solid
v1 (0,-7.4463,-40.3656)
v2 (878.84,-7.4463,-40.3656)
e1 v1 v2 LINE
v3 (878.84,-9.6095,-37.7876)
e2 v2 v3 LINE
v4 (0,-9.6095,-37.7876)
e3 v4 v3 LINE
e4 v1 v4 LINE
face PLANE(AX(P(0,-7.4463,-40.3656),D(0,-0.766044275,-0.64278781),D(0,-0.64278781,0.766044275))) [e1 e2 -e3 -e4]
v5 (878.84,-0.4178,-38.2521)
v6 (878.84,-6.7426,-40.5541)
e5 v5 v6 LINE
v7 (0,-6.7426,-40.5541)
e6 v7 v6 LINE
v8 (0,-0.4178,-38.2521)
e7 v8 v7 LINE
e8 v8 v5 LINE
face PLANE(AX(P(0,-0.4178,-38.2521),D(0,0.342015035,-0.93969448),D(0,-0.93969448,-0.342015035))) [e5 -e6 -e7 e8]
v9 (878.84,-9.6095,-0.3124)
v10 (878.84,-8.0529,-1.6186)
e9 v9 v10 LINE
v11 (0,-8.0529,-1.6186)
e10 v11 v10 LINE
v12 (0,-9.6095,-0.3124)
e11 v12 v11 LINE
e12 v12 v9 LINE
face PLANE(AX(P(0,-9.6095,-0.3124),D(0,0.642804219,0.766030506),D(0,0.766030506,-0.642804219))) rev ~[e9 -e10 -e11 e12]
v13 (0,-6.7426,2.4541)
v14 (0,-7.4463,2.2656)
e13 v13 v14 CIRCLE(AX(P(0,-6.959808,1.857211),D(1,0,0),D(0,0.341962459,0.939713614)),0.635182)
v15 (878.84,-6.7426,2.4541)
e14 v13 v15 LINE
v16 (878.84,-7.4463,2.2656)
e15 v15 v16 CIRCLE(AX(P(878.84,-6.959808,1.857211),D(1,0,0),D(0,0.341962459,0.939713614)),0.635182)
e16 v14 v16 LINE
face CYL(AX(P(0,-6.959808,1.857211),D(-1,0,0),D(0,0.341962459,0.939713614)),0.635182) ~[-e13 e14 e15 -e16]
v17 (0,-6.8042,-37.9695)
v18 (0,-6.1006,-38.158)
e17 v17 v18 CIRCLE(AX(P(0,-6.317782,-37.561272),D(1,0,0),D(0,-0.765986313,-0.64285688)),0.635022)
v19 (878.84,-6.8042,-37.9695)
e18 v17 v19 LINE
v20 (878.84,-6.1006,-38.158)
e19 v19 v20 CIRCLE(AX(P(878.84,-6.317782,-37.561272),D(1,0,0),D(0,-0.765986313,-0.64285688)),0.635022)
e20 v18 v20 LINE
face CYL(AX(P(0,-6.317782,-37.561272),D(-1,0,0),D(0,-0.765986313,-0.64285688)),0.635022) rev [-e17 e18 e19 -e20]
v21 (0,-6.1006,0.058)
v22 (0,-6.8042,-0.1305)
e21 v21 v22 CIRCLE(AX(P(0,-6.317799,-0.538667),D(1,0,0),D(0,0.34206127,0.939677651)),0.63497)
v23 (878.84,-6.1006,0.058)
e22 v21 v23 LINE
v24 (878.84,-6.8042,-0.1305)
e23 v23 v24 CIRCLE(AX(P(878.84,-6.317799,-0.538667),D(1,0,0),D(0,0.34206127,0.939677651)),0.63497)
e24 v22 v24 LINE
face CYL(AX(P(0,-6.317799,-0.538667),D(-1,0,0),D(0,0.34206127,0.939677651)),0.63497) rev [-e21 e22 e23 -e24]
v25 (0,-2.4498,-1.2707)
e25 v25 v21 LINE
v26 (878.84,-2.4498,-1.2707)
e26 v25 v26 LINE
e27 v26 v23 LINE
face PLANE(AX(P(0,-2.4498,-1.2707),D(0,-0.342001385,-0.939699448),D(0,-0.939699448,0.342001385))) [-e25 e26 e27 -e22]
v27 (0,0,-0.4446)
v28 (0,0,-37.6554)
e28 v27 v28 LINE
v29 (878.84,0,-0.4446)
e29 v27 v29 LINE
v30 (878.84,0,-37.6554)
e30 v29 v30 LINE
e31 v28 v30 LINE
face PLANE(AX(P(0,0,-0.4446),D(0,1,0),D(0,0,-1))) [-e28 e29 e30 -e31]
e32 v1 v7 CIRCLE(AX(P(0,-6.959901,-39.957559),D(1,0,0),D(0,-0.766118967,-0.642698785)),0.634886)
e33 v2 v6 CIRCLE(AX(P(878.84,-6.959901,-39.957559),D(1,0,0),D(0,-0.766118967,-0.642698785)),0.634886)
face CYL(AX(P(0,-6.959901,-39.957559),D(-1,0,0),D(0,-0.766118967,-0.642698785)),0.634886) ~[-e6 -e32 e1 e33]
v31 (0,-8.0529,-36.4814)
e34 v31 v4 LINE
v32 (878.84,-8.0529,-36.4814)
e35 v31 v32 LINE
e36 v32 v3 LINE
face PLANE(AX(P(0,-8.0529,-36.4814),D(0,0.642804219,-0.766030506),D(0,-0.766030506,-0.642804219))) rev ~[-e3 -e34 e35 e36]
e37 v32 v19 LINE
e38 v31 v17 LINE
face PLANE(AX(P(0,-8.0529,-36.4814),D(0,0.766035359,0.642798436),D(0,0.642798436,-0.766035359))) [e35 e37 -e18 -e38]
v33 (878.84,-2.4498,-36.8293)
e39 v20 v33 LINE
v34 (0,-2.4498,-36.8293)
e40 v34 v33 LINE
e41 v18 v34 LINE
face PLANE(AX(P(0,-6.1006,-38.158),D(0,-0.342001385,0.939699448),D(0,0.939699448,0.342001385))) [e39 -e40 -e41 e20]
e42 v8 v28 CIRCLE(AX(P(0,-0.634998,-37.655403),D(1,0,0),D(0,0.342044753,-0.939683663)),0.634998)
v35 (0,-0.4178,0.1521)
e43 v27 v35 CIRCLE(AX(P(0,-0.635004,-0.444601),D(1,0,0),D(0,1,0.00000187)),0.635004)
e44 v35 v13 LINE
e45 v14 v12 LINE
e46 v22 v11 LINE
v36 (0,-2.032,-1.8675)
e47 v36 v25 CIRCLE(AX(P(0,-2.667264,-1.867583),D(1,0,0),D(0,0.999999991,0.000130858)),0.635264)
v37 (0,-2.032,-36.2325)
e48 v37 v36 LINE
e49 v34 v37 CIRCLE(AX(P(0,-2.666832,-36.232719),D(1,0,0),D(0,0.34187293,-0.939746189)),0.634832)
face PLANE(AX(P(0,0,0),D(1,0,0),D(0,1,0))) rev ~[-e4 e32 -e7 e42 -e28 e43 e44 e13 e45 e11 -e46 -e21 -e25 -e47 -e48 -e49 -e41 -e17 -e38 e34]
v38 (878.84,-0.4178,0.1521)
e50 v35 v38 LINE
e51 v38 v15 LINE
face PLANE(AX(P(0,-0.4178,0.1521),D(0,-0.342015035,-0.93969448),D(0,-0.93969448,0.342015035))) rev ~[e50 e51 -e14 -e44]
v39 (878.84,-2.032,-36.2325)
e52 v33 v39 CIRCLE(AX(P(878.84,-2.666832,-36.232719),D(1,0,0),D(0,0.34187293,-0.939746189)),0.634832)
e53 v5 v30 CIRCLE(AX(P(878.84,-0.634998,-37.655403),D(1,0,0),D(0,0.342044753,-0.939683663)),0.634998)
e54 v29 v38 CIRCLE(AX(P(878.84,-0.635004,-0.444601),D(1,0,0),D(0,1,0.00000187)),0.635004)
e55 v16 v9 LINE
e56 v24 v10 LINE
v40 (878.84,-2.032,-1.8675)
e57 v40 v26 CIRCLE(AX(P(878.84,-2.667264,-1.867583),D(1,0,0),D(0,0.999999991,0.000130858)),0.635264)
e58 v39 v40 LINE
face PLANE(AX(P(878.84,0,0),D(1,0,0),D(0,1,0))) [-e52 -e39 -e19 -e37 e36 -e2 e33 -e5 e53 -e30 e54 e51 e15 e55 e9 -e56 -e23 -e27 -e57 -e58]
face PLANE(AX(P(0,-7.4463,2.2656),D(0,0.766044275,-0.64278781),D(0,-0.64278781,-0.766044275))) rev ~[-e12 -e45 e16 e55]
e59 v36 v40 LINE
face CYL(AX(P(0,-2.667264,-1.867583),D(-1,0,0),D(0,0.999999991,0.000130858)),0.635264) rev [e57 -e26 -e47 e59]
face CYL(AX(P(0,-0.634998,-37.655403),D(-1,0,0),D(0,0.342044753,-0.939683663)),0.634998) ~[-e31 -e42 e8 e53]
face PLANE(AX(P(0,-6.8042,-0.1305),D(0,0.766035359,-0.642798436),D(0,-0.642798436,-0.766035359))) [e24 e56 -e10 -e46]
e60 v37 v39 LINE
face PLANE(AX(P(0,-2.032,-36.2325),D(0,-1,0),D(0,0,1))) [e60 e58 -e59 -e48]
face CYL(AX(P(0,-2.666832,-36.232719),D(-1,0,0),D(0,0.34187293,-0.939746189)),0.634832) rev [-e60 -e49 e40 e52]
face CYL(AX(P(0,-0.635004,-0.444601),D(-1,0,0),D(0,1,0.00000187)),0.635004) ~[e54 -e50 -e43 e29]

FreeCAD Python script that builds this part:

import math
import FreeCAD as App
import Part
import Sketcher
from FreeCAD import Vector
Q = App.Units.Quantity

doc = App.newDocument("Part")
body = doc.addObject("PartDesign::Body", "Body")

# Sketch on YZ plane
sketch1 = body.newObject("Sketcher::SketchObject", "Sketch")
sketch1.AttachmentSupport = (doc.getObject("YZ_Plane"), [""])
sketch1.MapMode = "FlatFace"
sketch1.addGeometry([
    Part.LineSegment(Vector(0, -37.7, 0), Vector(0, -0.4, 0)),  # 0
    Part.ArcOfCircle(Part.Circle(Vector(-0.6, -0.4, 0), Vector(0, 0, 1), 0.6), math.radians(0), math.radians(70)),  # 1
    Part.LineSegment(Vector(-0.4, 0.2, 0), Vector(-6.7, 2.5, 0)),  # 2
    Part.ArcOfCircle(Part.Circle(Vector(-7, 1.9, 0), Vector(0, 0, 1), 0.6), math.radians(70), math.radians(140)),  # 3
    Part.LineSegment(Vector(-7.4, 2.3, 0), Vector(-9.6, -0.3, 0)),  # 4
    Part.LineSegment(Vector(-9.6, -0.3, 0), Vector(-8.1, -1.6, 0)),  # 5
    Part.LineSegment(Vector(-8.1, -1.6, 0), Vector(-6.8, -0.1, 0)),  # 6
    Part.ArcOfCircle(Part.Circle(Vector(-6.3, -0.5, 0), Vector(0, 0, 1), 0.6), math.radians(70), math.radians(140)),  # 7
    Part.LineSegment(Vector(-6.1, 0.1, 0), Vector(-2.4, -1.3, 0)),  # 8
    Part.ArcOfCircle(Part.Circle(Vector(-2.7, -1.9, 0), Vector(0, 0, 1), 0.6), math.radians(0), math.radians(70)),  # 9
    Part.LineSegment(Vector(-2, -1.9, 0), Vector(-2, -36.2, 0)),  # 10
    Part.ArcOfCircle(Part.Circle(Vector(-2.7, -36.2, 0), Vector(0, 0, 1), 0.6), math.radians(-70), math.radians(0)),  # 11
    Part.LineSegment(Vector(-2.4, -36.8, 0), Vector(-6.1, -38.2, 0)),  # 12
    Part.ArcOfCircle(Part.Circle(Vector(-6.3, -37.6, 0), Vector(0, 0, 1), 0.6), math.radians(-140), math.radians(-70)),  # 13
    Part.LineSegment(Vector(-6.8, -38, 0), Vector(-8.1, -36.5, 0)),  # 14
    Part.LineSegment(Vector(-8.1, -36.5, 0), Vector(-9.6, -37.8, 0)),  # 15
    Part.LineSegment(Vector(-9.6, -37.8, 0), Vector(-7.4, -40.4, 0)),  # 16
    Part.ArcOfCircle(Part.Circle(Vector(-7, -40, 0), Vector(0, 0, 1), 0.6), math.radians(-140), math.radians(-70)),  # 17
    Part.LineSegment(Vector(-6.7, -40.6, 0), Vector(-0.4, -38.3, 0)),  # 18
    Part.ArcOfCircle(Part.Circle(Vector(-0.6, -37.7, 0), Vector(0, 0, 1), 0.6), math.radians(-70), math.radians(0)),  # 19
], False)
sketch1.addConstraint([
    Sketcher.Constraint("Tangent", 0, 2, 1, 1),
    Sketcher.Constraint("Tangent", 1, 2, 2, 1),
    Sketcher.Constraint("Tangent", 2, 2, 3, 1),
    Sketcher.Constraint("Tangent", 3, 2, 4, 1),
    Sketcher.Constraint("Coincident", 4, 2, 5, 1),
    Sketcher.Constraint("Coincident", 5, 2, 6, 1),
    Sketcher.Constraint("Tangent", 6, 2, 7, 2),
    Sketcher.Constraint("Tangent", 7, 1, 8, 1),
    Sketcher.Constraint("Tangent", 8, 2, 9, 2),
    Sketcher.Constraint("Tangent", 9, 1, 10, 1),
    Sketcher.Constraint("Tangent", 10, 2, 11, 2),
    Sketcher.Constraint("Tangent", 11, 1, 12, 1),
    Sketcher.Constraint("Tangent", 12, 2, 13, 2),
    Sketcher.Constraint("Tangent", 13, 1, 14, 1),
    Sketcher.Constraint("Coincident", 14, 2, 15, 1),
    Sketcher.Constraint("Coincident", 15, 2, 16, 1),
    Sketcher.Constraint("Tangent", 16, 2, 17, 1),
    Sketcher.Constraint("Tangent", 17, 2, 18, 1),
    Sketcher.Constraint("Tangent", 18, 2, 19, 1),
    Sketcher.Constraint("Tangent", 19, 2, 0, 1),
    Sketcher.Constraint("Vertical", 0),
    Sketcher.Constraint("Vertical", 10),
    Sketcher.Constraint("Equal", 1, 3),
    Sketcher.Constraint("Equal", 3, 7),
    Sketcher.Constraint("Equal", 7, 9),
    Sketcher.Constraint("Equal", 9, 11),
    Sketcher.Constraint("Equal", 11, 13),
    Sketcher.Constraint("Equal", 13, 17),
    Sketcher.Constraint("Equal", 17, 19),
    Sketcher.Constraint("PointOnObject", 0, 2, -2),
    Sketcher.Constraint("Perpendicular", 4, 5),
    Sketcher.Constraint("Perpendicular", 5, 6),
    Sketcher.Constraint("Parallel", 2, 8),
    Sketcher.Constraint("Perpendicular", 14, 15),
    Sketcher.Constraint("Perpendicular", 15, 16),
    Sketcher.Constraint("Parallel", 12, 18),
    Sketcher.Constraint("Vertical", 7, 3, 13, 3),
    Sketcher.Constraint("Vertical", 3, 3, 17, 3),
    Sketcher.Constraint("Vertical", 8, 2, 11, 1),
    Sketcher.Constraint("Vertical", 6, 2, 13, 1),
    Sketcher.Constraint("Vertical", 5, 2, 14, 2),
    Sketcher.Constraint("Vertical", 4, 2, 15, 2),
    Sketcher.Constraint("Radius", 1, Q("0.025 in")),
    Sketcher.Constraint("Distance", 5, Q("0.08 in")),
    Sketcher.Constraint("DistanceX", 9, 1, -1, 1, Q("0.08 in")),
    Sketcher.Constraint("Angle", 2, Q("160.0003 deg")),
    Sketcher.Constraint("Angle", 4, Q("-130 deg")),
    Sketcher.Constraint("DistanceY", 0, 1, 0, 2, Q("1.465 in")),
    Sketcher.Constraint("Distance", 2, Q("0.265 in")),
    Sketcher.Constraint("DistanceY", -1, 1, 1, 2, Q("0.006 in")),
    Sketcher.Constraint("DistanceY", 5, 2, 7, 1, Q("0.066 in")),
    Sketcher.Constraint("Distance", 4, Q("0.1325 in")),
])
pad1 = body.newObject("PartDesign::Pad", "Pad")
pad1.Profile = sketch1
pad1.Length = Q("34.6 in")

doc.recompute()
